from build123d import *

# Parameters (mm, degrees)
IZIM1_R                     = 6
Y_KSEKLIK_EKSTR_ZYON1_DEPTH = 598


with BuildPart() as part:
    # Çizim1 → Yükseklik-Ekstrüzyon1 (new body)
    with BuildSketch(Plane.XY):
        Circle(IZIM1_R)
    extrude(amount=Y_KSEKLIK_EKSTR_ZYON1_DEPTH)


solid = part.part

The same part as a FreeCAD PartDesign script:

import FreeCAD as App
import Part
import Sketcher
from FreeCAD import Vector

doc = App.newDocument("Part")
params = doc.addObject("Spreadsheet::Sheet", "Params")
for row, (alias, value) in enumerate([
    ("sketch1_diameter", "12 mm"),
    ("pad1_length", "598 mm"),
], start=1):
    params.set(f"A{row}", alias)
    params.set(f"B{row}", "=" + value)
    params.setAlias(f"B{row}", alias)

body = doc.addObject("PartDesign::Body", "Body")

# Sketch on XY plane
sketch1 = doc.addObject("Sketcher::SketchObject", "Sketch")
body.addObject(sketch1)
sketch1.AttachmentSupport = (doc.XY_Plane, [""])
sketch1.MapMode = "FlatFace"
sketch1.addGeometry(Part.Circle(Vector(0, 0, 0), Vector(0, 0, 1), 6), False)
sketch1.addConstraint([
    Sketcher.Constraint("Coincident", 0, 3, -1, 1),
    Sketcher.Constraint("Diameter", 0, 12.0),
])
sketch1.setExpression("Constraints[1]", "Params.sketch1_diameter")
pad1 = doc.addObject("PartDesign::Pad", "Pad")
body.addObject(pad1)
pad1.Profile = sketch1
pad1.setExpression("Length", "Params.pad1_length")

doc.recompute()
